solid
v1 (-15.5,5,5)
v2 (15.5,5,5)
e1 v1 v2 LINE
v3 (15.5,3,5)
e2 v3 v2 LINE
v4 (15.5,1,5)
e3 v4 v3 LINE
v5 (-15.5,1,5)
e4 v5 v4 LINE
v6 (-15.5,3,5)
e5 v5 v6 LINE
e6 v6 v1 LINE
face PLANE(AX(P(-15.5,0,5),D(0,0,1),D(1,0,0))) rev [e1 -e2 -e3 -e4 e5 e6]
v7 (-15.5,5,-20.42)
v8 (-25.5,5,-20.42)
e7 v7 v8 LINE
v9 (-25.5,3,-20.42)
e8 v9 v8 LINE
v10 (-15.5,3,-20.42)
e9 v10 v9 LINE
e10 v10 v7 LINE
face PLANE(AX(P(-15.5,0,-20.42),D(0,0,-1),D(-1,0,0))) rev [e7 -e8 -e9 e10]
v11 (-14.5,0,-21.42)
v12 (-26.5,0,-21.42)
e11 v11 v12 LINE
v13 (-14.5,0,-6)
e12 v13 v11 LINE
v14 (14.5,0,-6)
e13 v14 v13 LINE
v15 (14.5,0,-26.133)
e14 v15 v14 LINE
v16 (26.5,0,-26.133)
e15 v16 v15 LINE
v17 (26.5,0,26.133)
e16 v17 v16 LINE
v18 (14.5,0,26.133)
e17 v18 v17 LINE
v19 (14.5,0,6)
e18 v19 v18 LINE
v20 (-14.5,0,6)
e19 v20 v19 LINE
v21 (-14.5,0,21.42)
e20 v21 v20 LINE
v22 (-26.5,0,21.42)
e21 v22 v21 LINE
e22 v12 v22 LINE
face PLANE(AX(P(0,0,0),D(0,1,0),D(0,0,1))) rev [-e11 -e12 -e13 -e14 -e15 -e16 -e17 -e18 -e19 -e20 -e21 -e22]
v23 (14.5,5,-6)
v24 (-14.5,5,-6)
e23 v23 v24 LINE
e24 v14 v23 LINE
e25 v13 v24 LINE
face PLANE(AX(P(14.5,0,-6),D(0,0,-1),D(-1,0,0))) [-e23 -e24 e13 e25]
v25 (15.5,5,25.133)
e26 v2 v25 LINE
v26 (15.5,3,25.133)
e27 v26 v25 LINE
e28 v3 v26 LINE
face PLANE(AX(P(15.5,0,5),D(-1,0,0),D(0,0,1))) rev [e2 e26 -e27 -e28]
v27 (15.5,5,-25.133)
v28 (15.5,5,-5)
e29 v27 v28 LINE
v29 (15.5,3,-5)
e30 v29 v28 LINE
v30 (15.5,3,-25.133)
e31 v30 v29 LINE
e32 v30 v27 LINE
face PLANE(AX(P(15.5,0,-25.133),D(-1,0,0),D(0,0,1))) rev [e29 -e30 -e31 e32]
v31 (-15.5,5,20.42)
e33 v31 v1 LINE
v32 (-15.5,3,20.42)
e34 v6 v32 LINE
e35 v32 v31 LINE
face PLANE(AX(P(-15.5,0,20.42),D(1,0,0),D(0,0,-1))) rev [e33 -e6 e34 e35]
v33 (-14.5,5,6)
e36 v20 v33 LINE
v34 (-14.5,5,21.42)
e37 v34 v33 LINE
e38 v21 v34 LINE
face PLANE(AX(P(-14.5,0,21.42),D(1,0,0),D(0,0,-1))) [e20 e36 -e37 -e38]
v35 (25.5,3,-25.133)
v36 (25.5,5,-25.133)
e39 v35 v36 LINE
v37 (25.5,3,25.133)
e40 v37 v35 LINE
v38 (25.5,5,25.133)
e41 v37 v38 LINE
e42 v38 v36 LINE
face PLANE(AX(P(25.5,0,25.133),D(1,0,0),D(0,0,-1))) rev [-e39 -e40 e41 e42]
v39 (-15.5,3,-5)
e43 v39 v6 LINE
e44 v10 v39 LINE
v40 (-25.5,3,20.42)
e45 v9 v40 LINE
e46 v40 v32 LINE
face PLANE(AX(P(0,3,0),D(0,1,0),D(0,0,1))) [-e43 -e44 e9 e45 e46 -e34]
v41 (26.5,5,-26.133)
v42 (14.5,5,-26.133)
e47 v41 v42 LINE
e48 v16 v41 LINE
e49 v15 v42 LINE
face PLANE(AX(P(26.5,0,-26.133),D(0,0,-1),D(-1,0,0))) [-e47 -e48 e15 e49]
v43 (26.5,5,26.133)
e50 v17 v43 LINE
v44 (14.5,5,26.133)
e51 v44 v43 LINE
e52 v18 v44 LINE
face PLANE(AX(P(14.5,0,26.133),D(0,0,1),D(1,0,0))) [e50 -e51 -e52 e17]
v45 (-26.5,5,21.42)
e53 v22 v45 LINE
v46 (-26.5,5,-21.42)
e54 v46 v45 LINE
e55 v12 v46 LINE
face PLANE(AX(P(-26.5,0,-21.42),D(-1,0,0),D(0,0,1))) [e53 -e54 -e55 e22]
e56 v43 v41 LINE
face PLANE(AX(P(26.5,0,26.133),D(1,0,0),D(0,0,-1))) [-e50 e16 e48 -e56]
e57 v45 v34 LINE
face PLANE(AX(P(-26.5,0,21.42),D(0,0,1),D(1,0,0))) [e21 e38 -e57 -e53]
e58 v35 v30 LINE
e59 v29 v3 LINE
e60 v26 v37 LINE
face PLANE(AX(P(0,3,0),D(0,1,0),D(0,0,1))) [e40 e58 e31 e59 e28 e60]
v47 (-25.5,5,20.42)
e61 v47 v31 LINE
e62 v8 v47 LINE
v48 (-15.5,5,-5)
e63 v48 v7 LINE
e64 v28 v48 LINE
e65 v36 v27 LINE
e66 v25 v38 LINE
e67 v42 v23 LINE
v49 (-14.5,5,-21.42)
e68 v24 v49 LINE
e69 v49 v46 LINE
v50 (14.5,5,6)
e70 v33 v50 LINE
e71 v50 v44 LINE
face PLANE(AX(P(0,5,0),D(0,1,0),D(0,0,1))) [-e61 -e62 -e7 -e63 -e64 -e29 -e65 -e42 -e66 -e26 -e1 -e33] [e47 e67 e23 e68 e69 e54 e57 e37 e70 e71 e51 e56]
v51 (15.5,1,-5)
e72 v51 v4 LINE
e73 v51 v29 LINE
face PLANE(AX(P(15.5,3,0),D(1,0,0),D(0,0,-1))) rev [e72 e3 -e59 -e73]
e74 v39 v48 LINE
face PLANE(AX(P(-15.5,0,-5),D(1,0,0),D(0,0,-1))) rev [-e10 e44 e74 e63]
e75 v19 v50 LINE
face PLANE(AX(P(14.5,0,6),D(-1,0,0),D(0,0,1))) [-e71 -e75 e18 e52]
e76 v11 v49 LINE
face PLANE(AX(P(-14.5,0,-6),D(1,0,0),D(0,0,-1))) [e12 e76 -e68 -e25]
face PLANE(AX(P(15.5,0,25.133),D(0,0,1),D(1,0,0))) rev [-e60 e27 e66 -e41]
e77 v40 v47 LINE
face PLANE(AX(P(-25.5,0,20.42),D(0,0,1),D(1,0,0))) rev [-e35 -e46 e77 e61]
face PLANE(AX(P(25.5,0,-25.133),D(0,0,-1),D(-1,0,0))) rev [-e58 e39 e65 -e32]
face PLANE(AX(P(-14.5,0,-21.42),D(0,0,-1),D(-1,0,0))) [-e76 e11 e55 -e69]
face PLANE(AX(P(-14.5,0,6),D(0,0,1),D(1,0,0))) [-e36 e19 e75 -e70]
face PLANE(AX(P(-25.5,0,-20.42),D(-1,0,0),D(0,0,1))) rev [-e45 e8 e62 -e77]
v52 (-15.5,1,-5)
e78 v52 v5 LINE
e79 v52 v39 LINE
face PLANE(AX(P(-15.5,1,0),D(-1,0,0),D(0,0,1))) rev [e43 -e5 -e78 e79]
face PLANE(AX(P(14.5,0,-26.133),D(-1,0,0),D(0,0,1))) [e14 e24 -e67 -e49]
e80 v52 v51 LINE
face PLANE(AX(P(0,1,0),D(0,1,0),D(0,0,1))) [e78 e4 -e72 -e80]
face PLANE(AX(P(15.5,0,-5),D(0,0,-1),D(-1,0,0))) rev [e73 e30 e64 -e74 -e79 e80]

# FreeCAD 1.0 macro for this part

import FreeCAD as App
import Part
import Sketcher
from FreeCAD import Vector

doc = App.newDocument("Part")
params = doc.addObject("Spreadsheet::Sheet", "Params")
for row, (alias, value) in enumerate([
    ("sketch1_width", "10 mm"),
    ("sketch1_width2", "31 mm"),
    ("sketch1_height", "40.84 mm"),
    ("pad1_length", "1 mm"),
    ("sketch2_width", "12 mm"),
    ("sketch2_width2", "29 mm"),
    ("sketch2_width3", "31 mm"),
    ("sketch2_width4", "10 mm"),
    ("sketch2_height", "42.84 mm"),
    ("pad2_length", "4 mm"),
    ("pad2_length2", "1 mm"),
    ("sketch3_width", "10 mm"),
    ("sketch3_height", "40.84 mm"),
    ("pad3_length", "2 mm"),
], start=1):
    params.set(f"A{row}", alias)
    params.set(f"B{row}", "=" + value)
    params.setAlias(f"B{row}", alias)

body = doc.addObject("PartDesign::Body", "Body")

# Sketch on XZ plane
sketch1 = doc.addObject("Sketcher::SketchObject", "Sketch")
body.addObject(sketch1)
sketch1.AttachmentSupport = (doc.XZ_Plane, [""])
sketch1.MapMode = "FlatFace"
sketch1.addGeometry(Part.LineSegment(Vector(-25.5, -20.42, 0), Vector(-25.5, 20.42, 0)), False)
sketch1.addGeometry(Part.LineSegment(Vector(-25.5, 20.42, 0), Vector(-15.5, 20.42, 0)), False)
sketch1.addGeometry(Part.LineSegment(Vector(-15.5, 20.42, 0), Vector(-15.5, 5, 0)), False)
sketch1.addGeometry(Part.LineSegment(Vector(-15.5, 5, 0), Vector(15.5, 5, 0)), False)
sketch1.addGeometry(Part.LineSegment(Vector(15.5, 5, 0), Vector(15.5, 25.133, 0)), False)
sketch1.addGeometry(Part.LineSegment(Vector(15.5, 25.133, 0), Vector(25.5, 25.133, 0)), False)
sketch1.addGeometry(Part.LineSegment(Vector(25.5, 25.133, 0), Vector(25.5, -25.133, 0)), False)
sketch1.addGeometry(Part.LineSegment(Vector(25.5, -25.133, 0), Vector(15.5, -25.133, 0)), False)
sketch1.addGeometry(Part.LineSegment(Vector(15.5, -25.133, 0), Vector(15.5, -5, 0)), False)
sketch1.addGeometry(Part.LineSegment(Vector(15.5, -5, 0), Vector(-15.5, -5, 0)), False)
sketch1.addGeometry(Part.LineSegment(Vector(-15.5, -5, 0), Vector(-15.5, -20.42, 0)), False)
sketch1.addGeometry(Part.LineSegment(Vector(-15.5, -20.42, 0), Vector(-25.5, -20.42, 0)), False)
sketch1.addConstraint(Sketcher.Constraint("Coincident", 0, 2, 1, 1))
sketch1.addConstraint(Sketcher.Constraint("Coincident", 1, 2, 2, 1))
sketch1.addConstraint(Sketcher.Constraint("Coincident", 2, 2, 3, 1))
sketch1.addConstraint(Sketcher.Constraint("Coincident", 3, 2, 4, 1))
sketch1.addConstraint(Sketcher.Constraint("Coincident", 4, 2, 5, 1))
sketch1.addConstraint(Sketcher.Constraint("Coincident", 5, 2, 6, 1))
sketch1.addConstraint(Sketcher.Constraint("Coincident", 6, 2, 7, 1))
sketch1.addConstraint(Sketcher.Constraint("Coincident", 7, 2, 8, 1))
sketch1.addConstraint(Sketcher.Constraint("Coincident", 8, 2, 9, 1))
sketch1.addConstraint(Sketcher.Constraint("Coincident", 9, 2, 10, 1))
sketch1.addConstraint(Sketcher.Constraint("Coincident", 10, 2, 11, 1))
sketch1.addConstraint(Sketcher.Constraint("Coincident", 11, 2, 0, 1))
sketch1.addConstraint(Sketcher.Constraint("Vertical", 0))
sketch1.addConstraint(Sketcher.Constraint("Horizontal", 1))
sketch1.addConstraint(Sketcher.Constraint("Vertical", 2))
sketch1.addConstraint(Sketcher.Constraint("Horizontal", 3))
sketch1.addConstraint(Sketcher.Constraint("Vertical", 4))
sketch1.addConstraint(Sketcher.Constraint("Horizontal", 5))
sketch1.addConstraint(Sketcher.Constraint("Vertical", 6))
sketch1.addConstraint(Sketcher.Constraint("Horizontal", 7))
sketch1.addConstraint(Sketcher.Constraint("Vertical", 8))
sketch1.addConstraint(Sketcher.Constraint("Horizontal", 9))
sketch1.addConstraint(Sketcher.Constraint("Vertical", 10))
sketch1.addConstraint(Sketcher.Constraint("Horizontal", 11))
sketch1.addConstraint(Sketcher.Constraint("Symmetric", 2, 2, 8, 2, -1, 1))
sketch1.addConstraint(Sketcher.Constraint("Symmetric", 4, 2, 7, 2, -1))
sketch1.addConstraint(Sketcher.Constraint("Symmetric", 1, 2, 10, 2, -1))
sketch1.addConstraint(Sketcher.Constraint("Equal", 1, 5))
sketch1.addConstraint(Sketcher.Constraint("DistanceX", 1, 1, 1, 2, 10.0))
sketch1.addConstraint(Sketcher.Constraint("DistanceX", 3, 1, 3, 2, 31.0))
sketch1.addConstraint(Sketcher.Constraint("DistanceY", -1, 1, 2, 2, 5.0))
sketch1.addConstraint(Sketcher.Constraint("DistanceY", 0, 1, 0, 2, 40.84))
sketch1.addConstraint(Sketcher.Constraint("DistanceY", 4, 1, 4, 2, 20.133))
sketch1.setExpression("Constraints[28]", "Params.sketch1_width")
sketch1.setExpression("Constraints[29]", "Params.sketch1_width2")
sketch1.setExpression("Constraints[31]", "Params.sketch1_height")
pad1 = doc.addObject("PartDesign::Pad", "Pad")
body.addObject(pad1)
pad1.Profile = sketch1
pad1.setExpression("Length", "Params.pad1_length")
pad1.Reversed = True
body2 = doc.addObject("PartDesign::Body", "Body001")

# Sketch on XZ plane
sketch2 = doc.addObject("Sketcher::SketchObject", "Sketch001")
body2.addObject(sketch2)
sketch2.AttachmentSupport = (doc.getObject("XZ_Plane001"), [""])
sketch2.MapMode = "FlatFace"
sketch2.AttachmentOffset = App.Placement(Vector(0, 0, -1), App.Rotation())
sketch2.addGeometry(Part.LineSegment(Vector(-26.5, -21.42, 0), Vector(-26.5, 21.42, 0)), False)
sketch2.addGeometry(Part.LineSegment(Vector(-26.5, 21.42, 0), Vector(-14.5, 21.42, 0)), False)
sketch2.addGeometry(Part.LineSegment(Vector(-14.5, 21.42, 0), Vector(-14.5, 6, 0)), False)
sketch2.addGeometry(Part.LineSegment(Vector(-14.5, 6, 0), Vector(14.5, 6, 0)), False)
sketch2.addGeometry(Part.LineSegment(Vector(14.5, 6, 0), Vector(14.5, 26.133, 0)), False)
sketch2.addGeometry(Part.LineSegment(Vector(14.5, 26.133, 0), Vector(26.5, 26.133, 0)), False)
sketch2.addGeometry(Part.LineSegment(Vector(26.5, 26.133, 0), Vector(26.5, -26.133, 0)), False)
sketch2.addGeometry(Part.LineSegment(Vector(26.5, -26.133, 0), Vector(14.5, -26.133, 0)), False)
sketch2.addGeometry(Part.LineSegment(Vector(14.5, -26.133, 0), Vector(14.5, -6, 0)), False)
sketch2.addGeometry(Part.LineSegment(Vector(14.5, -6, 0), Vector(-14.5, -6, 0)), False)
sketch2.addGeometry(Part.LineSegment(Vector(-14.5, -6, 0), Vector(-14.5, -21.42, 0)), False)
sketch2.addGeometry(Part.LineSegment(Vector(-14.5, -21.42, 0), Vector(-26.5, -21.42, 0)), False)
sketch2.addGeometry(Part.LineSegment(Vector(15.5, 5, 0), Vector(-15.5, 5, 0)), False)
sketch2.addGeometry(Part.LineSegment(Vector(-15.5, 5, 0), Vector(-15.5, 20.42, 0)), False)
sketch2.addGeometry(Part.LineSegment(Vector(-15.5, 20.42, 0), Vector(-25.5, 20.42, 0)), False)
sketch2.addGeometry(Part.LineSegment(Vector(-25.5, 20.42, 0), Vector(-25.5, -20.42, 0)), False)
sketch2.addGeometry(Part.LineSegment(Vector(-25.5, -20.42, 0), Vector(-15.5, -20.42, 0)), False)
sketch2.addGeometry(Part.LineSegment(Vector(-15.5, -20.42, 0), Vector(-15.5, -5, 0)), False)
sketch2.addGeometry(Part.LineSegment(Vector(-15.5, -5, 0), Vector(15.5, -5, 0)), False)
sketch2.addGeometry(Part.LineSegment(Vector(15.5, -5, 0), Vector(15.5, -25.133, 0)), False)
sketch2.addGeometry(Part.LineSegment(Vector(15.5, -25.133, 0), Vector(25.5, -25.133, 0)), False)
sketch2.addGeometry(Part.LineSegment(Vector(25.5, -25.133, 0), Vector(25.5, 25.133, 0)), False)
sketch2.addGeometry(Part.LineSegment(Vector(25.5, 25.133, 0), Vector(15.5, 25.133, 0)), False)
sketch2.addGeometry(Part.LineSegment(Vector(15.5, 25.133, 0), Vector(15.5, 5, 0)), False)
sketch2.addConstraint(Sketcher.Constraint("Coincident", 0, 2, 1, 1))
sketch2.addConstraint(Sketcher.Constraint("Coincident", 1, 2, 2, 1))
sketch2.addConstraint(Sketcher.Constraint("Coincident", 2, 2, 3, 1))
sketch2.addConstraint(Sketcher.Constraint("Coincident", 3, 2, 4, 1))
sketch2.addConstraint(Sketcher.Constraint("Coincident", 4, 2, 5, 1))
sketch2.addConstraint(Sketcher.Constraint("Coincident", 5, 2, 6, 1))
sketch2.addConstraint(Sketcher.Constraint("Coincident", 6, 2, 7, 1))
sketch2.addConstraint(Sketcher.Constraint("Coincident", 7, 2, 8, 1))
sketch2.addConstraint(Sketcher.Constraint("Coincident", 8, 2, 9, 1))
sketch2.addConstraint(Sketcher.Constraint("Coincident", 9, 2, 10, 1))
sketch2.addConstraint(Sketcher.Constraint("Coincident", 10, 2, 11, 1))
sketch2.addConstraint(Sketcher.Constraint("Coincident", 11, 2, 0, 1))
sketch2.addConstraint(Sketcher.Constraint("Coincident", 12, 2, 13, 1))
sketch2.addConstraint(Sketcher.Constraint("Coincident", 13, 2, 14, 1))
sketch2.addConstraint(Sketcher.Constraint("Coincident", 14, 2, 15, 1))
sketch2.addConstraint(Sketcher.Constraint("Coincident", 15, 2, 16, 1))
sketch2.addConstraint(Sketcher.Constraint("Coincident", 16, 2, 17, 1))
sketch2.addConstraint(Sketcher.Constraint("Coincident", 17, 2, 18, 1))
sketch2.addConstraint(Sketcher.Constraint("Coincident", 18, 2, 19, 1))
sketch2.addConstraint(Sketcher.Constraint("Coincident", 19, 2, 20, 1))
sketch2.addConstraint(Sketcher.Constraint("Coincident", 20, 2, 21, 1))
sketch2.addConstraint(Sketcher.Constraint("Coincident", 21, 2, 22, 1))
sketch2.addConstraint(Sketcher.Constraint("Coincident", 22, 2, 23, 1))
sketch2.addConstraint(Sketcher.Constraint("Coincident", 23, 2, 12, 1))
sketch2.addConstraint(Sketcher.Constraint("Vertical", 0))
sketch2.addConstraint(Sketcher.Constraint("Horizontal", 1))
sketch2.addConstraint(Sketcher.Constraint("Vertical", 2))
sketch2.addConstraint(Sketcher.Constraint("Horizontal", 3))
sketch2.addConstraint(Sketcher.Constraint("Vertical", 4))
sketch2.addConstraint(Sketcher.Constraint("Horizontal", 5))
sketch2.addConstraint(Sketcher.Constraint("Vertical", 6))
sketch2.addConstraint(Sketcher.Constraint("Horizontal", 7))
sketch2.addConstraint(Sketcher.Constraint("Vertical", 8))
sketch2.addConstraint(Sketcher.Constraint("Horizontal", 9))
sketch2.addConstraint(Sketcher.Constraint("Vertical", 10))
sketch2.addConstraint(Sketcher.Constraint("Horizontal", 11))
sketch2.addConstraint(Sketcher.Constraint("Horizontal", 12))
sketch2.addConstraint(Sketcher.Constraint("Vertical", 13))
sketch2.addConstraint(Sketcher.Constraint("Horizontal", 14))
sketch2.addConstraint(Sketcher.Constraint("Vertical", 15))
sketch2.addConstraint(Sketcher.Constraint("Horizontal", 16))
sketch2.addConstraint(Sketcher.Constraint("Vertical", 17))
sketch2.addConstraint(Sketcher.Constraint("Horizontal", 18))
sketch2.addConstraint(Sketcher.Constraint("Vertical", 19))
sketch2.addConstraint(Sketcher.Constraint("Horizontal", 20))
sketch2.addConstraint(Sketcher.Constraint("Vertical", 21))
sketch2.addConstraint(Sketcher.Constraint("Horizontal", 22))
sketch2.addConstraint(Sketcher.Constraint("Vertical", 23))
sketch2.addConstraint(Sketcher.Constraint("Symmetric", 2, 2, 8, 2, -1, 1))
sketch2.addConstraint(Sketcher.Constraint("Symmetric", 12, 2, 18, 2, -1, 1))
sketch2.addConstraint(Sketcher.Constraint("Symmetric", 4, 2, 7, 2, -1))
sketch2.addConstraint(Sketcher.Constraint("Symmetric", 1, 2, 10, 2, -1))
sketch2.addConstraint(Sketcher.Constraint("Symmetric", 13, 2, 16, 2, -1))
sketch2.addConstraint(Sketcher.Constraint("Symmetric", 19, 2, 22, 2, -1))
sketch2.addConstraint(Sketcher.Constraint("Equal", 1, 5))
sketch2.addConstraint(Sketcher.Constraint("Equal", 16, 20))
sketch2.addConstraint(Sketcher.Constraint("Equal", 10, 13))
sketch2.addConstraint(Sketcher.Constraint("Equal", 8, 19))
sketch2.addConstraint(Sketcher.Constraint("DistanceX", 1, 1, 1, 2, 12.0))
sketch2.addConstraint(Sketcher.Constraint("DistanceX", 3, 1, 3, 2, 29.0))
sketch2.addConstraint(Sketcher.Constraint("DistanceX", 12, 2, 12, 1, 31.0))
sketch2.addConstraint(Sketcher.Constraint("DistanceX", 14, 2, 14, 1, 10.0))
sketch2.addConstraint(Sketcher.Constraint("DistanceY", -1, 1, 2, 2, 6.0))
sketch2.addConstraint(Sketcher.Constraint("DistanceY", -1, 1, 12, 2, 5.0))
sketch2.addConstraint(Sketcher.Constraint("DistanceY", 0, 1, 0, 2, 42.84))
sketch2.addConstraint(Sketcher.Constraint("DistanceY", 4, 1, 4, 2, 20.133))
sketch2.setExpression("Constraints[58]", "Params.sketch2_width")
sketch2.setExpression("Constraints[59]", "Params.sketch2_width2")
sketch2.setExpression("Constraints[60]", "Params.sketch2_width3")
sketch2.setExpression("Constraints[61]", "Params.sketch2_width4")
sketch2.setExpression("Constraints[64]", "Params.sketch2_height")
pad2 = doc.addObject("PartDesign::Pad", "Pad001")
body2.addObject(pad2)
pad2.Profile = sketch2
pad2.Type = "TwoLengths"
pad2.setExpression("Length", "Params.pad2_length")
pad2.setExpression("Length2", "Params.pad2_length2")
pad2.Reversed = True
doc.recompute()

boolean = doc.addObject("PartDesign::Boolean", "Boolean")
body.addObject(boolean)
boolean.Type = "Fuse"
boolean.addObjects([body2])

# Sketch on XZ plane
sketch3 = doc.addObject("Sketcher::SketchObject", "Sketch002")
body.addObject(sketch3)
sketch3.AttachmentSupport = (doc.XZ_Plane, [""])
sketch3.MapMode = "FlatFace"
sketch3.AttachmentOffset = App.Placement(Vector(0, 0, -1), App.Rotation())
sketch3.addGeometry(Part.LineSegment(Vector(-25.5, -20.42, 0), Vector(-25.5, 20.42, 0)), False)
sketch3.addGeometry(Part.LineSegment(Vector(-25.5, 20.42, 0), Vector(-15.5, 20.42, 0)), False)
sketch3.addGeometry(Part.LineSegment(Vector(-15.5, 20.42, 0), Vector(-15.5, -20.42, 0)), False)
sketch3.addGeometry(Part.LineSegment(Vector(-15.5, -20.42, 0), Vector(-25.5, -20.42, 0)), False)
sketch3.addGeometry(Part.LineSegment(Vector(15.5, -25.133, 0), Vector(15.5, 25.133, 0)), False)
sketch3.addGeometry(Part.LineSegment(Vector(15.5, 25.133, 0), Vector(25.5, 25.133, 0)), False)
sketch3.addGeometry(Part.LineSegment(Vector(25.5, 25.133, 0), Vector(25.5, -25.133, 0)), False)
sketch3.addGeometry(Part.LineSegment(Vector(25.5, -25.133, 0), Vector(15.5, -25.133, 0)), False)
sketch3.addConstraint(Sketcher.Constraint("Coincident", 0, 2, 1, 1))
sketch3.addConstraint(Sketcher.Constraint("Coincident", 1, 2, 2, 1))
sketch3.addConstraint(Sketcher.Constraint("Coincident", 2, 2, 3, 1))
sketch3.addConstraint(Sketcher.Constraint("Coincident", 3, 2, 0, 1))
sketch3.addConstraint(Sketcher.Constraint("Coincident", 4, 2, 5, 1))
sketch3.addConstraint(Sketcher.Constraint("Coincident", 5, 2, 6, 1))
sketch3.addConstraint(Sketcher.Constraint("Coincident", 6, 2, 7, 1))
sketch3.addConstraint(Sketcher.Constraint("Coincident", 7, 2, 4, 1))
sketch3.addConstraint(Sketcher.Constraint("Vertical", 0))
sketch3.addConstraint(Sketcher.Constraint("Horizontal", 1))
sketch3.addConstraint(Sketcher.Constraint("Vertical", 2))
sketch3.addConstraint(Sketcher.Constraint("Horizontal", 3))
sketch3.addConstraint(Sketcher.Constraint("Vertical", 4))
sketch3.addConstraint(Sketcher.Constraint("Horizontal", 5))
sketch3.addConstraint(Sketcher.Constraint("Vertical", 6))
sketch3.addConstraint(Sketcher.Constraint("Horizontal", 7))
sketch3.addConstraint(Sketcher.Constraint("Equal", 3, 5))
sketch3.addConstraint(Sketcher.Constraint("DistanceX", 1, 1, 1, 2, 10.0))
sketch3.addConstraint(Sketcher.Constraint("DistanceX", 1, 2, 4, 2, 31.0))
sketch3.addConstraint(Sketcher.Constraint("DistanceY", 0, 1, 0, 2, 40.84))
sketch3.addConstraint(Sketcher.Constraint("DistanceX", 0, 2, -1, 1, 25.5))
sketch3.addConstraint(Sketcher.Constraint("DistanceY", 4, 1, 4, 2, 50.266))
sketch3.addConstraint(Sketcher.Constraint("DistanceY", -1, 1, 0, 2, 20.42))
sketch3.addConstraint(Sketcher.Constraint("DistanceY", -1, 1, 4, 2, 25.133))
sketch3.setExpression("Constraints[17]", "Params.sketch3_width")
sketch3.setExpression("Constraints[19]", "Params.sketch3_height")
pad3 = doc.addObject("PartDesign::Pad", "Pad002")
body.addObject(pad3)
pad3.Profile = sketch3
pad3.setExpression("Length", "Params.pad3_length")
pad3.Reversed = True

doc.recompute()
